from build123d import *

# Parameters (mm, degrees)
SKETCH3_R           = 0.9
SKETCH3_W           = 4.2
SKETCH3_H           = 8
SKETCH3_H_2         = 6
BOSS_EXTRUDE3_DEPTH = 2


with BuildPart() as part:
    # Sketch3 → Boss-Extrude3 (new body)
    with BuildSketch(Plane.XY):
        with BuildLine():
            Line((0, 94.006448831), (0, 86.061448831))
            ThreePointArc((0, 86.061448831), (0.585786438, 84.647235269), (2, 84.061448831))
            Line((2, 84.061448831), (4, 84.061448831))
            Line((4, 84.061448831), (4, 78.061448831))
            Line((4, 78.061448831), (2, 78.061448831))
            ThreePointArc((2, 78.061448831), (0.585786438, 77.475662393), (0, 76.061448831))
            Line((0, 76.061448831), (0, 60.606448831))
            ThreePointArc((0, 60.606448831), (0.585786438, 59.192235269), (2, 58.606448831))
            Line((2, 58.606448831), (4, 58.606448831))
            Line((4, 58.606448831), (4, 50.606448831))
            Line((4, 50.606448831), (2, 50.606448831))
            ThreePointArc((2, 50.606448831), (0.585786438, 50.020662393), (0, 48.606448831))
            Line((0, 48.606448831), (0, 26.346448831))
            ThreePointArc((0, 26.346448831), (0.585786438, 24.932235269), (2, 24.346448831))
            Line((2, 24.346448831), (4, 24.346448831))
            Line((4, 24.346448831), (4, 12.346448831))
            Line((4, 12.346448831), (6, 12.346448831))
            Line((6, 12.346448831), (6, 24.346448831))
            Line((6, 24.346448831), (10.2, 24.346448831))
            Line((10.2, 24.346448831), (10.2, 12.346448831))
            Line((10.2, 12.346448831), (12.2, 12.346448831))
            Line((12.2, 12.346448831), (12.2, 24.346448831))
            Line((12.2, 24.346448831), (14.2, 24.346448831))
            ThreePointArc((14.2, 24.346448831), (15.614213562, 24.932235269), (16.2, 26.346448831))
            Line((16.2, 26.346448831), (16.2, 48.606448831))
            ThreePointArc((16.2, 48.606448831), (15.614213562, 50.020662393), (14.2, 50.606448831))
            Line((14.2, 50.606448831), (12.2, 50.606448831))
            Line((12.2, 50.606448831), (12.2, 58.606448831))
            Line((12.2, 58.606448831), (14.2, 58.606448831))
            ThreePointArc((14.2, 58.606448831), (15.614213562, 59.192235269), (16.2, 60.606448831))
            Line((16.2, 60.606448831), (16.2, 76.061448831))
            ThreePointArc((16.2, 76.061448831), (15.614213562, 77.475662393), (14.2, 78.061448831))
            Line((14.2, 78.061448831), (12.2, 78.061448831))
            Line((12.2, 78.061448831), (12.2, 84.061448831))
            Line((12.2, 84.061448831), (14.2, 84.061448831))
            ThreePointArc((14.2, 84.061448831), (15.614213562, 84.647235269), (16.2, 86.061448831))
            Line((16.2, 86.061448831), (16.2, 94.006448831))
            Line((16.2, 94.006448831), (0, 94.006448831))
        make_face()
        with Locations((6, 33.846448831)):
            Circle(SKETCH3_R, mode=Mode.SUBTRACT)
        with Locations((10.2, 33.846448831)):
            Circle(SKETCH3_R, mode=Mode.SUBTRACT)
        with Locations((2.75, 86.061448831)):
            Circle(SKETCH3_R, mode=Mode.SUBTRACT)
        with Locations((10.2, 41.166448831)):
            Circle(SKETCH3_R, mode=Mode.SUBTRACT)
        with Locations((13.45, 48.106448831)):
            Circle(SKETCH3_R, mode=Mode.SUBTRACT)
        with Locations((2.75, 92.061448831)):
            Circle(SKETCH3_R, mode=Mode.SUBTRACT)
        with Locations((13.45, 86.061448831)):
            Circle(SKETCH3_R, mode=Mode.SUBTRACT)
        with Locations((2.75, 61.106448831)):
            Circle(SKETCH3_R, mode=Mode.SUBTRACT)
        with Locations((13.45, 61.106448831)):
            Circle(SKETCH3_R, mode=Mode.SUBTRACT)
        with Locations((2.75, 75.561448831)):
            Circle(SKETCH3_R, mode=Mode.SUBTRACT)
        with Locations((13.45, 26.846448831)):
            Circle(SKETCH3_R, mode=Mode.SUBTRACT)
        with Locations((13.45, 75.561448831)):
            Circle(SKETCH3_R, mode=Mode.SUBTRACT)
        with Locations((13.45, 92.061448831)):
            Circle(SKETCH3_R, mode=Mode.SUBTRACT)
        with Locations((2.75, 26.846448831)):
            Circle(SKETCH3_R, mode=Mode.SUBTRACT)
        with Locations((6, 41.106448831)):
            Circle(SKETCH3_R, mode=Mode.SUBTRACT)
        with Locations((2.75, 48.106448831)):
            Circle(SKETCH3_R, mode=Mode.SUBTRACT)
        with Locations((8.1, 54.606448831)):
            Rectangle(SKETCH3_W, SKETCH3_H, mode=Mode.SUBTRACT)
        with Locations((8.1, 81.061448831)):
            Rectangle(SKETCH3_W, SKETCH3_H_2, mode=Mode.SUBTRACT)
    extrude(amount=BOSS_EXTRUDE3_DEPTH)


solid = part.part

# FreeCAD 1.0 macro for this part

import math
import FreeCAD as App
import Part
import Sketcher


def add_polygon(sketch, points):
    """Adds a closed chain of lines whose ends are joined by coincident constraints."""
    first, n = sketch.GeometryCount, len(points)
    for a, b in zip(points, points[1:] + points[:1]):
        sketch.addGeometry(Part.LineSegment(App.Vector(*a, 0), App.Vector(*b, 0)), False)
    for i in range(n):
        sketch.addConstraint(Sketcher.Constraint("Coincident", first + i, 2, first + (i + 1) % n, 1))

doc = App.newDocument("Part")
body = doc.addObject("PartDesign::Body", "Body")

sketch1 = doc.addObject("Sketcher::SketchObject", "Sketch")
body.addObject(sketch1)
sketch1.AttachmentSupport = (doc.XY_Plane, [""])
sketch1.MapMode = "FlatFace"
sketch1.addGeometry(Part.LineSegment(App.Vector(0, 94.006449, 0), App.Vector(0, 86.061449, 0)), False)
sketch1.addGeometry(Part.ArcOfCircle(Part.Circle(App.Vector(2, 86.061449, 0), App.Vector(0, 0, 1), 2), math.radians(-180), math.radians(-90)), False)
sketch1.addGeometry(Part.LineSegment(App.Vector(2, 84.061449, 0), App.Vector(4, 84.061449, 0)), False)
sketch1.addGeometry(Part.LineSegment(App.Vector(4, 84.061449, 0), App.Vector(4, 78.061449, 0)), False)
sketch1.addGeometry(Part.LineSegment(App.Vector(4, 78.061449, 0), App.Vector(2, 78.061449, 0)), False)
sketch1.addGeometry(Part.ArcOfCircle(Part.Circle(App.Vector(2, 76.061449, 0), App.Vector(0, 0, 1), 2), math.radians(90), math.radians(180)), False)
sketch1.addGeometry(Part.LineSegment(App.Vector(0, 76.061449, 0), App.Vector(0, 60.606449, 0)), False)
sketch1.addGeometry(Part.ArcOfCircle(Part.Circle(App.Vector(2, 60.606449, 0), App.Vector(0, 0, 1), 2), math.radians(-180), math.radians(-90)), False)
sketch1.addGeometry(Part.LineSegment(App.Vector(2, 58.606449, 0), App.Vector(4, 58.606449, 0)), False)
sketch1.addGeometry(Part.LineSegment(App.Vector(4, 58.606449, 0), App.Vector(4, 50.606449, 0)), False)
sketch1.addGeometry(Part.LineSegment(App.Vector(4, 50.606449, 0), App.Vector(2, 50.606449, 0)), False)
sketch1.addGeometry(Part.ArcOfCircle(Part.Circle(App.Vector(2, 48.606449, 0), App.Vector(0, 0, 1), 2), math.radians(90), math.radians(180)), False)
sketch1.addGeometry(Part.LineSegment(App.Vector(0, 48.606449, 0), App.Vector(0, 26.346449, 0)), False)
sketch1.addGeometry(Part.ArcOfCircle(Part.Circle(App.Vector(2, 26.346449, 0), App.Vector(0, 0, 1), 2), math.radians(-180), math.radians(-90)), False)
sketch1.addGeometry(Part.LineSegment(App.Vector(2, 24.346449, 0), App.Vector(4, 24.346449, 0)), False)
sketch1.addGeometry(Part.LineSegment(App.Vector(4, 24.346449, 0), App.Vector(4, 12.346449, 0)), False)
sketch1.addGeometry(Part.LineSegment(App.Vector(4, 12.346449, 0), App.Vector(6, 12.346449, 0)), False)
sketch1.addGeometry(Part.LineSegment(App.Vector(6, 12.346449, 0), App.Vector(6, 24.346449, 0)), False)
sketch1.addGeometry(Part.LineSegment(App.Vector(6, 24.346449, 0), App.Vector(10.2, 24.346449, 0)), False)
sketch1.addGeometry(Part.LineSegment(App.Vector(10.2, 24.346449, 0), App.Vector(10.2, 12.346449, 0)), False)
sketch1.addGeometry(Part.LineSegment(App.Vector(10.2, 12.346449, 0), App.Vector(12.2, 12.346449, 0)), False)
sketch1.addGeometry(Part.LineSegment(App.Vector(12.2, 12.346449, 0), App.Vector(12.2, 24.346449, 0)), False)
sketch1.addGeometry(Part.LineSegment(App.Vector(12.2, 24.346449, 0), App.Vector(14.2, 24.346449, 0)), False)
sketch1.addGeometry(Part.ArcOfCircle(Part.Circle(App.Vector(14.2, 26.346449, 0), App.Vector(0, 0, 1), 2), math.radians(-90), math.radians(0)), False)
sketch1.addGeometry(Part.LineSegment(App.Vector(16.2, 26.346449, 0), App.Vector(16.2, 48.606449, 0)), False)
sketch1.addGeometry(Part.ArcOfCircle(Part.Circle(App.Vector(14.2, 48.606449, 0), App.Vector(0, 0, 1), 2), math.radians(0), math.radians(90)), False)
sketch1.addGeometry(Part.LineSegment(App.Vector(14.2, 50.606449, 0), App.Vector(12.2, 50.606449, 0)), False)
sketch1.addGeometry(Part.LineSegment(App.Vector(12.2, 50.606449, 0), App.Vector(12.2, 58.606449, 0)), False)
sketch1.addGeometry(Part.LineSegment(App.Vector(12.2, 58.606449, 0), App.Vector(14.2, 58.606449, 0)), False)
sketch1.addGeometry(Part.ArcOfCircle(Part.Circle(App.Vector(14.2, 60.606449, 0), App.Vector(0, 0, 1), 2), math.radians(-90), math.radians(0)), False)
sketch1.addGeometry(Part.LineSegment(App.Vector(16.2, 60.606449, 0), App.Vector(16.2, 76.061449, 0)), False)
sketch1.addGeometry(Part.ArcOfCircle(Part.Circle(App.Vector(14.2, 76.061449, 0), App.Vector(0, 0, 1), 2), math.radians(0), math.radians(90)), False)
sketch1.addGeometry(Part.LineSegment(App.Vector(14.2, 78.061449, 0), App.Vector(12.2, 78.061449, 0)), False)
sketch1.addGeometry(Part.LineSegment(App.Vector(12.2, 78.061449, 0), App.Vector(12.2, 84.061449, 0)), False)
sketch1.addGeometry(Part.LineSegment(App.Vector(12.2, 84.061449, 0), App.Vector(14.2, 84.061449, 0)), False)
sketch1.addGeometry(Part.ArcOfCircle(Part.Circle(App.Vector(14.2, 86.061449, 0), App.Vector(0, 0, 1), 2), math.radians(-90), math.radians(0)), False)
sketch1.addGeometry(Part.LineSegment(App.Vector(16.2, 86.061449, 0), App.Vector(16.2, 94.006449, 0)), False)
sketch1.addGeometry(Part.LineSegment(App.Vector(16.2, 94.006449, 0), App.Vector(0, 94.006449, 0)), False)
sketch1.addGeometry(Part.Circle(App.Vector(2.75, 26.846449, 0), App.Vector(0, 0, 1), 0.9), False)
sketch1.addGeometry(Part.Circle(App.Vector(6, 33.846449, 0), App.Vector(0, 0, 1), 0.9), False)
sketch1.addGeometry(Part.Circle(App.Vector(6, 41.106449, 0), App.Vector(0, 0, 1), 0.9), False)
sketch1.addGeometry(Part.Circle(App.Vector(2.75, 48.106449, 0), App.Vector(0, 0, 1), 0.9), False)
sketch1.addGeometry(Part.Circle(App.Vector(10.2, 33.846449, 0), App.Vector(0, 0, 1), 0.9), False)
sketch1.addGeometry(Part.Circle(App.Vector(10.2, 41.166449, 0), App.Vector(0, 0, 1), 0.9), False)
sketch1.addGeometry(Part.Circle(App.Vector(13.45, 26.846449, 0), App.Vector(0, 0, 1), 0.9), False)
add_polygon(sketch1, [(10.2, 50.606449), (6, 50.606449), (6, 58.606449), (10.2, 58.606449)])
sketch1.addGeometry(Part.Circle(App.Vector(13.45, 48.106449, 0), App.Vector(0, 0, 1), 0.9), False)
sketch1.addGeometry(Part.Circle(App.Vector(2.75, 61.106449, 0), App.Vector(0, 0, 1), 0.9), False)
sketch1.addGeometry(Part.Circle(App.Vector(2.75, 75.561449, 0), App.Vector(0, 0, 1), 0.9), False)
sketch1.addGeometry(Part.Circle(App.Vector(2.75, 86.061449, 0), App.Vector(0, 0, 1), 0.9), False)
sketch1.addGeometry(Part.Circle(App.Vector(2.75, 92.061449, 0), App.Vector(0, 0, 1), 0.9), False)
sketch1.addGeometry(Part.Circle(App.Vector(13.45, 61.106449, 0), App.Vector(0, 0, 1), 0.9), False)
sketch1.addGeometry(Part.Circle(App.Vector(13.45, 75.561449, 0), App.Vector(0, 0, 1), 0.9), False)
add_polygon(sketch1, [(10.2, 78.061449), (6, 78.061449), (6, 84.061449), (10.2, 84.061449)])
sketch1.addGeometry(Part.Circle(App.Vector(13.45, 86.061449, 0), App.Vector(0, 0, 1), 0.9), False)
sketch1.addGeometry(Part.Circle(App.Vector(13.45, 92.061449, 0), App.Vector(0, 0, 1), 0.9), False)
sketch1.addConstraint([
    Sketcher.Constraint("Tangent", 0, 2, 1, 1),
    Sketcher.Constraint("Tangent", 1, 2, 2, 1),
    Sketcher.Constraint("Coincident", 2, 2, 3, 1),
    Sketcher.Constraint("Coincident", 3, 2, 4, 1),
    Sketcher.Constraint("Tangent", 4, 2, 5, 1),
    Sketcher.Constraint("Tangent", 5, 2, 6, 1),
    Sketcher.Constraint("Tangent", 6, 2, 7, 1),
    Sketcher.Constraint("Tangent", 7, 2, 8, 1),
    Sketcher.Constraint("Coincident", 8, 2, 9, 1),
    Sketcher.Constraint("Coincident", 9, 2, 10, 1),
    Sketcher.Constraint("Tangent", 10, 2, 11, 1),
    Sketcher.Constraint("Tangent", 11, 2, 12, 1),
    Sketcher.Constraint("Tangent", 12, 2, 13, 1),
    Sketcher.Constraint("Tangent", 13, 2, 14, 1),
    Sketcher.Constraint("Coincident", 14, 2, 15, 1),
    Sketcher.Constraint("Coincident", 15, 2, 16, 1),
    Sketcher.Constraint("Coincident", 16, 2, 17, 1),
    Sketcher.Constraint("Coincident", 17, 2, 18, 1),
    Sketcher.Constraint("Coincident", 18, 2, 19, 1),
    Sketcher.Constraint("Coincident", 19, 2, 20, 1),
    Sketcher.Constraint("Coincident", 20, 2, 21, 1),
    Sketcher.Constraint("Coincident", 21, 2, 22, 1),
    Sketcher.Constraint("Tangent", 22, 2, 23, 1),
    Sketcher.Constraint("Tangent", 23, 2, 24, 1),
    Sketcher.Constraint("Tangent", 24, 2, 25, 1),
    Sketcher.Constraint("Tangent", 25, 2, 26, 1),
    Sketcher.Constraint("Coincident", 26, 2, 27, 1),
    Sketcher.Constraint("Coincident", 27, 2, 28, 1),
    Sketcher.Constraint("Tangent", 28, 2, 29, 1),
    Sketcher.Constraint("Tangent", 29, 2, 30, 1),
    Sketcher.Constraint("Tangent", 30, 2, 31, 1),
    Sketcher.Constraint("Tangent", 31, 2, 32, 1),
    Sketcher.Constraint("Coincident", 32, 2, 33, 1),
    Sketcher.Constraint("Coincident", 33, 2, 34, 1),
    Sketcher.Constraint("Tangent", 34, 2, 35, 1),
    Sketcher.Constraint("Tangent", 35, 2, 36, 1),
    Sketcher.Constraint("Coincident", 36, 2, 37, 1),
    Sketcher.Constraint("Coincident", 37, 2, 0, 1),
    Sketcher.Constraint("Vertical", 0),
    Sketcher.Constraint("Horizontal", 2),
    Sketcher.Constraint("Vertical", 3),
    Sketcher.Constraint("Horizontal", 4),
    Sketcher.Constraint("Vertical", 6),
    Sketcher.Constraint("Horizontal", 8),
    Sketcher.Constraint("Vertical", 9),
    Sketcher.Constraint("Horizontal", 10),
    Sketcher.Constraint("Vertical", 12),
    Sketcher.Constraint("Horizontal", 14),
    Sketcher.Constraint("Vertical", 15),
    Sketcher.Constraint("Horizontal", 16),
    Sketcher.Constraint("Vertical", 17),
    Sketcher.Constraint("Horizontal", 18),
    Sketcher.Constraint("Vertical", 19),
    Sketcher.Constraint("Horizontal", 20),
    Sketcher.Constraint("Vertical", 21),
    Sketcher.Constraint("Horizontal", 22),
    Sketcher.Constraint("Vertical", 24),
    Sketcher.Constraint("Horizontal", 26),
    Sketcher.Constraint("Vertical", 27),
    Sketcher.Constraint("Horizontal", 28),
    Sketcher.Constraint("Vertical", 30),
    Sketcher.Constraint("Horizontal", 32),
    Sketcher.Constraint("Vertical", 33),
    Sketcher.Constraint("Horizontal", 34),
    Sketcher.Constraint("Vertical", 36),
    Sketcher.Constraint("Horizontal", 37),
    Sketcher.Constraint("Horizontal", 45),
    Sketcher.Constraint("Vertical", 46),
    Sketcher.Constraint("Horizontal", 47),
    Sketcher.Constraint("Vertical", 48),
    Sketcher.Constraint("Horizontal", 56),
    Sketcher.Constraint("Vertical", 57),
    Sketcher.Constraint("Horizontal", 58),
    Sketcher.Constraint("Vertical", 59),
    Sketcher.Constraint("Equal", 1, 5),
    Sketcher.Constraint("Equal", 5, 7),
    Sketcher.Constraint("Equal", 7, 11),
    Sketcher.Constraint("Equal", 11, 13),
    Sketcher.Constraint("Equal", 13, 23),
    Sketcher.Constraint("Equal", 23, 25),
    Sketcher.Constraint("Equal", 25, 29),
    Sketcher.Constraint("Equal", 29, 31),
    Sketcher.Constraint("Equal", 31, 35),
    Sketcher.Constraint("Equal", 38, 39),
    Sketcher.Constraint("Equal", 39, 40),
    Sketcher.Constraint("Equal", 40, 41),
    Sketcher.Constraint("Equal", 41, 42),
    Sketcher.Constraint("Equal", 42, 43),
    Sketcher.Constraint("Equal", 43, 44),
    Sketcher.Constraint("Equal", 44, 49),
    Sketcher.Constraint("Equal", 49, 50),
    Sketcher.Constraint("Equal", 50, 51),
    Sketcher.Constraint("Equal", 51, 52),
    Sketcher.Constraint("Equal", 52, 53),
    Sketcher.Constraint("Equal", 53, 54),
    Sketcher.Constraint("Equal", 54, 55),
    Sketcher.Constraint("Equal", 55, 60),
    Sketcher.Constraint("Equal", 60, 61),
    Sketcher.Constraint("PointOnObject", 0, 2, -2),
    Sketcher.Constraint("PointOnObject", 5, 2, -2),
    Sketcher.Constraint("PointOnObject", 11, 2, -2),
    Sketcher.Constraint("Horizontal", 13, 3, 23, 3),
    Sketcher.Constraint("Horizontal", 11, 3, 25, 3),
    Sketcher.Constraint("Horizontal", 7, 3, 29, 3),
    Sketcher.Constraint("Horizontal", 5, 3, 31, 3),
    Sketcher.Constraint("Horizontal", 1, 3, 35, 3),
    Sketcher.Constraint("Horizontal", 39, 3, 42, 3),
    Sketcher.Constraint("Horizontal", 38, 3, 44, 3),
    Sketcher.Constraint("Horizontal", 41, 3, 49, 3),
    Sketcher.Constraint("Horizontal", 35, 3, 52, 3),
    Sketcher.Constraint("Horizontal", 50, 3, 54, 3),
    Sketcher.Constraint("Horizontal", 51, 3, 55, 3),
    Sketcher.Constraint("Horizontal", 52, 3, 60, 3),
    Sketcher.Constraint("Horizontal", 53, 3, 61, 3),
    Sketcher.Constraint("Horizontal", 14, 2, 17, 2),
    Sketcher.Constraint("Horizontal", 16, 2, 19, 2),
    Sketcher.Constraint("Horizontal", 26, 2, 45, 2),
    Sketcher.Constraint("Horizontal", 28, 2, 46, 2),
    Sketcher.Constraint("Horizontal", 32, 2, 56, 2),
    Sketcher.Constraint("Horizontal", 34, 2, 57, 2),
    Sketcher.Constraint("Vertical", 25, 3, 29, 3),
    Sketcher.Constraint("Vertical", 31, 3, 35, 3),
    Sketcher.Constraint("Vertical", 39, 3, 40, 3),
    Sketcher.Constraint("Vertical", 38, 3, 41, 3),
    Sketcher.Constraint("Vertical", 42, 3, 43, 3),
    Sketcher.Constraint("Vertical", 44, 3, 49, 3),
    Sketcher.Constraint("Vertical", 41, 3, 50, 3),
    Sketcher.Constraint("Vertical", 50, 3, 51, 3),
    Sketcher.Constraint("Vertical", 51, 3, 52, 3),
    Sketcher.Constraint("Vertical", 52, 3, 53, 3),
    Sketcher.Constraint("Vertical", 49, 3, 54, 3),
    Sketcher.Constraint("Vertical", 54, 3, 55, 3),
    Sketcher.Constraint("Vertical", 55, 3, 60, 3),
    Sketcher.Constraint("Vertical", 60, 3, 61, 3),
    Sketcher.Constraint("Vertical", 3, 2, 8, 2),
    Sketcher.Constraint("Vertical", 9, 2, 14, 2),
    Sketcher.Constraint("Vertical", 40, 3, 16, 2),
    Sketcher.Constraint("Vertical", 43, 3, 18, 2),
    Sketcher.Constraint("Vertical", 21, 2, 26, 2),
    Sketcher.Constraint("Vertical", 27, 2, 32, 2),
    Sketcher.Constraint("Vertical", 17, 2, 45, 2),
    Sketcher.Constraint("Vertical", 19, 2, 47, 2),
    Sketcher.Constraint("Vertical", 46, 2, 56, 2),
    Sketcher.Constraint("Vertical", 48, 2, 58, 2),
    Sketcher.Constraint("Equal", 14, 16),
    Sketcher.Constraint("Equal", 16, 20),
    Sketcher.Constraint("Equal", 20, 22),
    Sketcher.Constraint("Radius", 1, 2.0),
    Sketcher.Constraint("Diameter", 38, 1.8),
    Sketcher.Constraint("DistanceX", 2, 1, 2, 2, 2.0),
    Sketcher.Constraint("DistanceY", 3, 2, 3, 1, 6.0),
    Sketcher.Constraint("DistanceY", 9, 2, 9, 1, 8.0),
    Sketcher.Constraint("DistanceY", 15, 2, 15, 1, 12.0),
    Sketcher.Constraint("DistanceX", 18, 1, 18, 2, 4.2),
    Sketcher.Constraint("DistanceY", 12, 2, 12, 1, 22.26),
    Sketcher.Constraint("DistanceY", 0, 2, 0, 1, 7.945),
    Sketcher.Constraint("DistanceY", 6, 2, 6, 1, 15.455),
    Sketcher.Constraint("DistanceX", -1, 1, 38, 3, 2.75),
    Sketcher.Constraint("DistanceX", -1, 1, 44, 3, 13.45),
    Sketcher.Constraint("DistanceY", -1, 1, 1, 3, 86.061449),
    Sketcher.Constraint("DistanceY", -1, 1, 38, 3, 26.846449),
    Sketcher.Constraint("DistanceY", -1, 1, 39, 3, 33.846449),
    Sketcher.Constraint("DistanceY", -1, 1, 40, 3, 41.106449),
    Sketcher.Constraint("DistanceY", -1, 1, 41, 3, 48.106449),
    Sketcher.Constraint("DistanceY", -1, 1, 43, 3, 41.166449),
    Sketcher.Constraint("DistanceY", -1, 1, 50, 3, 61.106449),
    Sketcher.Constraint("DistanceY", -1, 1, 51, 3, 75.561449),
    Sketcher.Constraint("DistanceY", -1, 1, 53, 3, 92.061449),
])
pad1 = doc.addObject("PartDesign::Pad", "Pad")
body.addObject(pad1)
pad1.Profile = sketch1
pad1.Length = 2

doc.recompute()
